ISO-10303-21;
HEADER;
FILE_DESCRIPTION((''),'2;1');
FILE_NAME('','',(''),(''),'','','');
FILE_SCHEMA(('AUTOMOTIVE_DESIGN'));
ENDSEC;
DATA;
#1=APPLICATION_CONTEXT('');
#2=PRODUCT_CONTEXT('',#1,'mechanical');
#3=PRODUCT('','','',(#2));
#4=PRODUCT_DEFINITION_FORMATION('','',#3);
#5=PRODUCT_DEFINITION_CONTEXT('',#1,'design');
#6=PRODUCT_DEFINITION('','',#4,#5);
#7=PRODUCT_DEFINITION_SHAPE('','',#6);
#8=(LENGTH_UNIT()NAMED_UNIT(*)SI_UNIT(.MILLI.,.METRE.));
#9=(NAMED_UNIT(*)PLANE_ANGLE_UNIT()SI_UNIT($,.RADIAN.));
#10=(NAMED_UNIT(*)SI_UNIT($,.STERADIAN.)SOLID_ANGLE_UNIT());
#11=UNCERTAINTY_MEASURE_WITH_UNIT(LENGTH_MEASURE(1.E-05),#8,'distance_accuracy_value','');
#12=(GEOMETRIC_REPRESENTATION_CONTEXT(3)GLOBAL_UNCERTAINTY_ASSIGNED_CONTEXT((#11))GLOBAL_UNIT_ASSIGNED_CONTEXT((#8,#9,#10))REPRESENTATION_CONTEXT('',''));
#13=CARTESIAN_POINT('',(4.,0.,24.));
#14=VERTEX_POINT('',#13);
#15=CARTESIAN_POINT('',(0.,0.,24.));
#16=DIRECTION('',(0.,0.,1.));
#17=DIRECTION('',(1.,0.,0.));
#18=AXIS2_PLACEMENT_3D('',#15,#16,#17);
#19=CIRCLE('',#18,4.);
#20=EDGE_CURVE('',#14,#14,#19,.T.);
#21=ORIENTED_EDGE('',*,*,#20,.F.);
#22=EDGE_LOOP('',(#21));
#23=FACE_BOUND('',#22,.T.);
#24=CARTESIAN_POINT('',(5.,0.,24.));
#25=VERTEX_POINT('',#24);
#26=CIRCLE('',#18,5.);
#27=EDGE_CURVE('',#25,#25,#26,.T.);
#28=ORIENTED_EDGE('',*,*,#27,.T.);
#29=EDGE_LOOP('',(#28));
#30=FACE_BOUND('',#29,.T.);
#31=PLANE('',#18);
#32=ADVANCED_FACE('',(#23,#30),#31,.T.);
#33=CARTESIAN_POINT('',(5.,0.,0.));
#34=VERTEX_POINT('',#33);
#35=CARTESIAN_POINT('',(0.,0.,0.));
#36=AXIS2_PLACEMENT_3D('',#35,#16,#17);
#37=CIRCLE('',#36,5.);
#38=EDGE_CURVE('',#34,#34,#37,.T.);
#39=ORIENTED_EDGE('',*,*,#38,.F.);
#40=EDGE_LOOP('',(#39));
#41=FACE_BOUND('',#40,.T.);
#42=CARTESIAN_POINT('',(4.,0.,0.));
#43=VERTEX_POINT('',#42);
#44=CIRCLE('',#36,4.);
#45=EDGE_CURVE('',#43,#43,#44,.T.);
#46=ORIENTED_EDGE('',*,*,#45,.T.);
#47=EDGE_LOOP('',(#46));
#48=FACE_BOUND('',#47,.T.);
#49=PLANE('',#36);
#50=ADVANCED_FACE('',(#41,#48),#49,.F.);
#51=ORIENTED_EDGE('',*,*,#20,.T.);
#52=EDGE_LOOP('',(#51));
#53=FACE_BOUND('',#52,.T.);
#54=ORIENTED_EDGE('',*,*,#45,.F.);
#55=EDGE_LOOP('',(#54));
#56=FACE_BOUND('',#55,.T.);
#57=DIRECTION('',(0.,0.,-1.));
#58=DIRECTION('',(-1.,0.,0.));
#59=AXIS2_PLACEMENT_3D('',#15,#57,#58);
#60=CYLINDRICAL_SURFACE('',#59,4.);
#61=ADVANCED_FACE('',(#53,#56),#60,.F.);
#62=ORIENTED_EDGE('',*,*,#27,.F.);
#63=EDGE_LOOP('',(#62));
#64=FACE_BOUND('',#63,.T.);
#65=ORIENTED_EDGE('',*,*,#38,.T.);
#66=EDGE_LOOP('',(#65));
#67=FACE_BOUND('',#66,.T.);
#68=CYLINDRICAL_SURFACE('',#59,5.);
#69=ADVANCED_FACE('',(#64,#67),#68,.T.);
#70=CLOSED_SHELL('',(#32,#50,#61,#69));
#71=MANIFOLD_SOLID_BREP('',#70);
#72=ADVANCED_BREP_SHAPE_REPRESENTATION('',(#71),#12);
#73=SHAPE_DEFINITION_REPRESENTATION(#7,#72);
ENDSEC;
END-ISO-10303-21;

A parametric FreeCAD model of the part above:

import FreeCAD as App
import Part
import Sketcher

V = App.Vector
Q = App.Units.Quantity

doc = App.newDocument("Part")
body = doc.addObject("PartDesign::Body", "Body")

sketch1 = body.newObject("Sketcher::SketchObject", "Sketch")
sketch1.AttachmentSupport = (doc.getObject("XY_Plane"), [""])
sketch1.MapMode = "FlatFace"
sketch1.addGeometry(Part.Circle(V(0, 0, 0), V(0, 0, 1), 5), False)
sketch1.addGeometry(Part.Circle(V(0, 0, 0), V(0, 0, 1), 4), False)
sketch1.addConstraint(Sketcher.Constraint("Coincident", 0, 3, -1, 1))
sketch1.addConstraint(Sketcher.Constraint("Coincident", 1, 3, -1, 1))
sketch1.addConstraint(Sketcher.Constraint("Diameter", 0, Q("10 mm")))
sketch1.addConstraint(Sketcher.Constraint("Diameter", 1, Q("8 mm")))
pad1 = body.newObject("PartDesign::Pad", "Pad")
pad1.Profile = sketch1
pad1.Length = 24

doc.recompute()
